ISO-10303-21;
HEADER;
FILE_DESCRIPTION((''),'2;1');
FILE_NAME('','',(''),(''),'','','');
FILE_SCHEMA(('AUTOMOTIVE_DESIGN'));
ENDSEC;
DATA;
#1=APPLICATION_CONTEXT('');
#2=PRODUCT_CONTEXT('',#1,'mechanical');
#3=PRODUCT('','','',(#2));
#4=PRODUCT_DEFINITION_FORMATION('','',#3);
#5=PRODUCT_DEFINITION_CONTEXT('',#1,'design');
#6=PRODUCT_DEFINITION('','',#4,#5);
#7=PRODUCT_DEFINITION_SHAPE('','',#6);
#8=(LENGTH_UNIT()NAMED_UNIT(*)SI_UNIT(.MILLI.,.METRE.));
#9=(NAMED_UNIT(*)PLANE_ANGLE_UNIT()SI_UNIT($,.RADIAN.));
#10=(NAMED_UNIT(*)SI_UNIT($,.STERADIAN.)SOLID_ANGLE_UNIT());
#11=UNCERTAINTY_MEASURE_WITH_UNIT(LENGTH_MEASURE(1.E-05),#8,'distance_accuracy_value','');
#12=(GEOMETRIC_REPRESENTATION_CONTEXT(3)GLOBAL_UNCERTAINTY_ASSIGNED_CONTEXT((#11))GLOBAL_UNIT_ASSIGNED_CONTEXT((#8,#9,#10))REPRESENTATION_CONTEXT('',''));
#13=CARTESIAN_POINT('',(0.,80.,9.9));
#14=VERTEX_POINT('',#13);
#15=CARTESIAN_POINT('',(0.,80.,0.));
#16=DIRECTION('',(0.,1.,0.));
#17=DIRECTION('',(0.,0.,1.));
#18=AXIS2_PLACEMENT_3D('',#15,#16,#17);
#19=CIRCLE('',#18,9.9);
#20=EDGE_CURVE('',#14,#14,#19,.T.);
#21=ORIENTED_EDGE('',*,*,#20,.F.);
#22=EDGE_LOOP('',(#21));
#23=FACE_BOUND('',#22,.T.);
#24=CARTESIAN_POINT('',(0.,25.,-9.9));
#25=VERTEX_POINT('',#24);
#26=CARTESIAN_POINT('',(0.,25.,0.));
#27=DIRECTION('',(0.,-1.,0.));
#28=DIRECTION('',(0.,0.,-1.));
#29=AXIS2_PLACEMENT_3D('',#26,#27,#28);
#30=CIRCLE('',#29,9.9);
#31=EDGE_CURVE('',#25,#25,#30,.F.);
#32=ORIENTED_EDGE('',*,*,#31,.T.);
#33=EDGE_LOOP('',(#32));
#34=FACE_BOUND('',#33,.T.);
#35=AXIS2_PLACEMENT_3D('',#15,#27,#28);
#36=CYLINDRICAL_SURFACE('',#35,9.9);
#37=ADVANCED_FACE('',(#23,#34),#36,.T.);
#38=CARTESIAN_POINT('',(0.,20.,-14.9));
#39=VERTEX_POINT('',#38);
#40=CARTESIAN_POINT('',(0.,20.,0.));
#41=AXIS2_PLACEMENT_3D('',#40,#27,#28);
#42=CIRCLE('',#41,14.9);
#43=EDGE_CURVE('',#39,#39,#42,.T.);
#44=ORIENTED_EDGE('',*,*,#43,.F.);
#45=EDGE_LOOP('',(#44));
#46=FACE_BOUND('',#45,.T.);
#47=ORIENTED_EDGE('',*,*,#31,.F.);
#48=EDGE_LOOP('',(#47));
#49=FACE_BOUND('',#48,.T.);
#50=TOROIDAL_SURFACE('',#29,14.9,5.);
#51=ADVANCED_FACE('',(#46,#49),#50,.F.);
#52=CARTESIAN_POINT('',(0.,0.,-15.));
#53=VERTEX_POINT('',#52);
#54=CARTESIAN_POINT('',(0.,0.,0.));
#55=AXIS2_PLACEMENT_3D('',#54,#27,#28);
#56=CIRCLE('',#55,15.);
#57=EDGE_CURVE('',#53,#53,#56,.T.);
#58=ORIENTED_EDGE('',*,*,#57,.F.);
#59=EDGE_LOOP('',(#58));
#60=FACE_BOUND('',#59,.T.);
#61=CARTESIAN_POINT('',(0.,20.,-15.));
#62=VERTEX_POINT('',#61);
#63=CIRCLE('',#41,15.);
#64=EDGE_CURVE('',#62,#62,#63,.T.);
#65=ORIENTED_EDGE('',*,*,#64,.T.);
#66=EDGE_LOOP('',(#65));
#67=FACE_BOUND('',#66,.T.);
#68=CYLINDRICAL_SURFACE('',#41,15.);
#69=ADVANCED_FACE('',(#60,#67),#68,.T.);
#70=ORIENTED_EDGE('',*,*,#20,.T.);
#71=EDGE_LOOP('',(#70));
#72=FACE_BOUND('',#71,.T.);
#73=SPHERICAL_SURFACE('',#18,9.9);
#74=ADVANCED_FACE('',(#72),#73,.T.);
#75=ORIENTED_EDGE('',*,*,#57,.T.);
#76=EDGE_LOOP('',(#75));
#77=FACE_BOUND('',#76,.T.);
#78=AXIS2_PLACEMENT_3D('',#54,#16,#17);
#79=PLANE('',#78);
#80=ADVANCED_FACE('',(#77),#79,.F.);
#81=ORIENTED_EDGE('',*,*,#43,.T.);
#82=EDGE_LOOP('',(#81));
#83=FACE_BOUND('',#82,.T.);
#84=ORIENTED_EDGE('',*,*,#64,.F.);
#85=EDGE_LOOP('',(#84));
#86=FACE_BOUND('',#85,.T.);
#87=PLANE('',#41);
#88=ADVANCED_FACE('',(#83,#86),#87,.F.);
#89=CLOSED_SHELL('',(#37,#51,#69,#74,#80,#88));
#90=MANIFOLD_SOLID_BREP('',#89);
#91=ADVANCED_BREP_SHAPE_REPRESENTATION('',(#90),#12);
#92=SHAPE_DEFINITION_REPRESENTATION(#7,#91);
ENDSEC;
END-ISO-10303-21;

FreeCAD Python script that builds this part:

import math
import FreeCAD as App
import Part
import Sketcher

V = App.Vector


def edges_at(feature, points):
    """Names of the edges that pass closest to the given points."""
    edges = feature.Shape.Edges
    near = lambda p: min(range(len(edges)), key=lambda i: edges[i].distToShape(Part.Vertex(*p))[0])
    return sorted({f"Edge{near(p) + 1}" for p in points})

doc = App.newDocument("Part")
body = doc.addObject("PartDesign::Body", "Body")

# Sketch on XZ plane
sketch1 = doc.addObject("Sketcher::SketchObject", "Sketch")
body.addObject(sketch1)
sketch1.AttachmentSupport = (doc.XZ_Plane, [""])
sketch1.MapMode = "FlatFace"
sketch1.addGeometry(Part.Circle(V(0, 0, 0), V(0, 0, 1), 10), False)
sketch1.addConstraint(Sketcher.Constraint("Coincident", 0, 3, -1, 1))
sketch1.addConstraint(Sketcher.Constraint("Diameter", 0, 19.8))
pad1 = doc.addObject("PartDesign::Pad", "Pad")
body.addObject(pad1)
pad1.Profile = sketch1
pad1.Length = 80
pad1.Reversed = True

# Sketch on XY plane
sketch2 = doc.addObject("Sketcher::SketchObject", "Sketch001")
body.addObject(sketch2)
sketch2.AttachmentSupport = (doc.XY_Plane, [""])
sketch2.MapMode = "FlatFace"
sketch2.addGeometry(Part.LineSegment(V(-10, 80, 0), V(10, 80, 0)), False)
sketch2.addGeometry(Part.ArcOfCircle(Part.Circle(V(0, 80, 0), V(0, 0, 1), 10), math.radians(0), math.radians(180)), False)
sketch2.addGeometry(Part.LineSegment(V(-10, 80, 0), V(10, 80, 0)), True)  # axis
sketch2.addConstraint(Sketcher.Constraint("Coincident", 0, 1, 1, 2))
sketch2.addConstraint(Sketcher.Constraint("Coincident", 1, 1, 0, 2))
sketch2.addConstraint(Sketcher.Constraint("Horizontal", 0))
sketch2.addConstraint(Sketcher.Constraint("Horizontal", 2))
sketch2.addConstraint(Sketcher.Constraint("Coincident", 2, 1, 0, 1))
sketch2.addConstraint(Sketcher.Constraint("PointOnObject", 1, 3, -2))
sketch2.addConstraint(Sketcher.Constraint("Horizontal", 1, 3, 0, 1))
sketch2.addConstraint(Sketcher.Constraint("Equal", 0, 2))
sketch2.addConstraint(Sketcher.Constraint("Radius", 1, 9.9))
sketch2.addConstraint(Sketcher.Constraint("DistanceY", -1, 1, 1, 3, 80.0))
revolution = doc.addObject("PartDesign::Revolution", "Revolution")
body.addObject(revolution)
revolution.Profile = sketch2
revolution.ReferenceAxis = (sketch2, ["Axis0"])
revolution.Angle = 360

# Sketch on XZ plane
sketch3 = doc.addObject("Sketcher::SketchObject", "Sketch002")
body.addObject(sketch3)
sketch3.AttachmentSupport = (doc.XZ_Plane, [""])
sketch3.MapMode = "FlatFace"
sketch3.addGeometry(Part.Circle(V(0, 0, 0), V(0, 0, 1), 15), False)
sketch3.addConstraint(Sketcher.Constraint("Coincident", 0, 3, -1, 1))
sketch3.addConstraint(Sketcher.Constraint("Diameter", 0, 30.0))
pad2 = doc.addObject("PartDesign::Pad", "Pad001")
body.addObject(pad2)
pad2.Profile = sketch3
pad2.Length = 20
pad2.Reversed = True
doc.recompute()

fillet = doc.addObject("PartDesign::Fillet", "Fillet")
body.addObject(fillet)
fillet.Base = (pad2, edges_at(pad2, [(0, 20, -9.9)]))
fillet.Radius = 5

doc.recompute()
